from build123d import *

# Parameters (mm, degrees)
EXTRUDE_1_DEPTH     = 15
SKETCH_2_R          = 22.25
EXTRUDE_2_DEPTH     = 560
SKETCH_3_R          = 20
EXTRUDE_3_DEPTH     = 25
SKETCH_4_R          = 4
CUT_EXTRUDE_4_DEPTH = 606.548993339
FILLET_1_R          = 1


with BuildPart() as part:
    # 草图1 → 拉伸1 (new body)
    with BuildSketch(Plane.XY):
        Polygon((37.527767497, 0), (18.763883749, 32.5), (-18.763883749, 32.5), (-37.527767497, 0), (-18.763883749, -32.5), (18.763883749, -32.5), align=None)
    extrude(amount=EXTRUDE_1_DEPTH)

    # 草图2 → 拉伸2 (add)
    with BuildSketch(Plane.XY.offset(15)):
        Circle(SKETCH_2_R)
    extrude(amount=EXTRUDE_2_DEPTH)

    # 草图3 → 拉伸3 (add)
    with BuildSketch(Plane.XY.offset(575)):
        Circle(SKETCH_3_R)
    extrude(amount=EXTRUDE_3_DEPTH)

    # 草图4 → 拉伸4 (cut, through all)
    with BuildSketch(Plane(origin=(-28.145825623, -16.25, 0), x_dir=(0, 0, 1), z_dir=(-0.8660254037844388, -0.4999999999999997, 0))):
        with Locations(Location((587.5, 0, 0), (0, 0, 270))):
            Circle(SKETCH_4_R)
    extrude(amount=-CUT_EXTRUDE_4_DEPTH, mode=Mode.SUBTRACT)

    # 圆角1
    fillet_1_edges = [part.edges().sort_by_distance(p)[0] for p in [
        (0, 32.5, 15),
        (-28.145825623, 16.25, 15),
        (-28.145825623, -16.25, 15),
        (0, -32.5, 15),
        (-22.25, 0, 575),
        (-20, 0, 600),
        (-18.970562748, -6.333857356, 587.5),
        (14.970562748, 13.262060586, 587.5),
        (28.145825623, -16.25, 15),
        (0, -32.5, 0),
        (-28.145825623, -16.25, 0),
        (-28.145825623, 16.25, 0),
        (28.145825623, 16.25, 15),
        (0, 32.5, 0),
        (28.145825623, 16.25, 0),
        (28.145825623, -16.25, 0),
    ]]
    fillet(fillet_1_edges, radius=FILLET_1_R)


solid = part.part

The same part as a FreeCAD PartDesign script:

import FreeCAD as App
import Part
import Sketcher
Q = App.Units.Quantity


def edges_at(feature, points):
    """Names of the edges that pass closest to the given points."""
    edges = feature.Shape.Edges
    near = lambda p: min(range(len(edges)), key=lambda i: edges[i].distToShape(Part.Vertex(*p))[0])
    return sorted({f"Edge{near(p) + 1}" for p in points})

doc = App.newDocument("Part")
params = doc.addObject("Spreadsheet::Sheet", "Params")
for row, (alias, value) in enumerate([
    ("pad1_length", "15 mm"),
    ("sketch2_diameter", "44.5 mm"),
    ("pad2_length", "560 mm"),
    ("sketch3_diameter", "40 mm"),
    ("pad3_length", "25 mm"),
    ("sketch4_diameter", "8 mm"),
    ("fillet_radius", "1 mm"),
], start=1):
    params.set(f"A{row}", alias)
    params.set(f"B{row}", "=" + value)
    params.setAlias(f"B{row}", alias)

body = doc.addObject("PartDesign::Body", "Body")

# Sketch on XY plane
sketch1 = doc.addObject("Sketcher::SketchObject", "Sketch")
body.addObject(sketch1)
sketch1.AttachmentSupport = (doc.XY_Plane, [""])
sketch1.MapMode = "FlatFace"
sketch1.addGeometry(Part.LineSegment(App.Vector(38, 0, 0), App.Vector(19, 32, 0)), False)
sketch1.addGeometry(Part.LineSegment(App.Vector(19, 32, 0), App.Vector(-19, 32, 0)), False)
sketch1.addGeometry(Part.LineSegment(App.Vector(-19, 32, 0), App.Vector(-38, 0, 0)), False)
sketch1.addGeometry(Part.LineSegment(App.Vector(-38, 0, 0), App.Vector(-19, -32, 0)), False)
sketch1.addGeometry(Part.LineSegment(App.Vector(-19, -32, 0), App.Vector(19, -32, 0)), False)
sketch1.addGeometry(Part.LineSegment(App.Vector(19, -32, 0), App.Vector(38, 0, 0)), False)
sketch1.addConstraint(Sketcher.Constraint("Coincident", 0, 2, 1, 1))
sketch1.addConstraint(Sketcher.Constraint("Coincident", 1, 2, 2, 1))
sketch1.addConstraint(Sketcher.Constraint("Coincident", 2, 2, 3, 1))
sketch1.addConstraint(Sketcher.Constraint("Coincident", 3, 2, 4, 1))
sketch1.addConstraint(Sketcher.Constraint("Coincident", 4, 2, 5, 1))
sketch1.addConstraint(Sketcher.Constraint("Coincident", 5, 2, 0, 1))
sketch1.addConstraint(Sketcher.Constraint("Horizontal", 1))
sketch1.addConstraint(Sketcher.Constraint("Horizontal", 4))
sketch1.addConstraint(Sketcher.Constraint("Symmetric", 0, 2, 3, 2, -1, 1))
sketch1.addConstraint(Sketcher.Constraint("Symmetric", 2, 2, 5, 2, -1, 1))
sketch1.addConstraint(Sketcher.Constraint("PointOnObject", 2, 2, -1))
sketch1.addConstraint(Sketcher.Constraint("Parallel", 2, 5))
sketch1.addConstraint(Sketcher.Constraint("Vertical", 1, 2, 3, 2))
sketch1.addConstraint(Sketcher.Constraint("Angle", 0, Q("120 deg")))
sketch1.addConstraint(Sketcher.Constraint("DistanceY", 3, 2, 1, 2, Q("65 mm")))
sketch1.addConstraint(Sketcher.Constraint("DistanceX", 1, 2, 1, 1, Q("37.527767 mm")))
pad1 = doc.addObject("PartDesign::Pad", "Pad")
body.addObject(pad1)
pad1.Profile = sketch1
pad1.setExpression("Length", "Params.pad1_length")

# Sketch on XY plane
sketch2 = doc.addObject("Sketcher::SketchObject", "Sketch001")
body.addObject(sketch2)
sketch2.AttachmentSupport = (doc.XY_Plane, [""])
sketch2.MapMode = "FlatFace"
sketch2.AttachmentOffset = App.Placement(App.Vector(0, 0, 15), App.Rotation())
sketch2.addGeometry(Part.Circle(App.Vector(0, 0, 0), App.Vector(0, 0, 1), 22), False)
sketch2.addConstraint(Sketcher.Constraint("Coincident", 0, 3, -1, 1))
sketch2.addConstraint(Sketcher.Constraint("Diameter", 0, Q("44.5 mm")))
sketch2.setExpression("Constraints[1]", "Params.sketch2_diameter")
pad2 = doc.addObject("PartDesign::Pad", "Pad001")
body.addObject(pad2)
pad2.Profile = sketch2
pad2.setExpression("Length", "Params.pad2_length")

# Sketch on XY plane
sketch3 = doc.addObject("Sketcher::SketchObject", "Sketch002")
body.addObject(sketch3)
sketch3.AttachmentSupport = (doc.XY_Plane, [""])
sketch3.MapMode = "FlatFace"
sketch3.AttachmentOffset = App.Placement(App.Vector(0, 0, 575), App.Rotation())
sketch3.addGeometry(Part.Circle(App.Vector(0, 0, 0), App.Vector(0, 0, 1), 20), False)
sketch3.addConstraint(Sketcher.Constraint("Coincident", 0, 3, -1, 1))
sketch3.addConstraint(Sketcher.Constraint("Diameter", 0, Q("40 mm")))
sketch3.setExpression("Constraints[1]", "Params.sketch3_diameter")
pad3 = doc.addObject("PartDesign::Pad", "Pad002")
body.addObject(pad3)
pad3.Profile = sketch3
pad3.setExpression("Length", "Params.pad3_length")

# Sketch on an angled plane
sketch4 = doc.addObject("Sketcher::SketchObject", "Sketch003")
body.addObject(sketch4)
sketch4.Placement = App.Placement(App.Vector(-28.145826, -16.25, 0), App.Rotation(App.Vector(0, 0, 1), App.Vector(-0.5, 0.866025404, 0), App.Vector(-0.866025404, -0.5, 0), "ZXY"))
sketch4.addGeometry(Part.Circle(App.Vector(587.5, 0, 0), App.Vector(0, 0, 1), 4), False)
sketch4.addConstraint(Sketcher.Constraint("PointOnObject", 0, 3, -1))
sketch4.addConstraint(Sketcher.Constraint("Diameter", 0, Q("8 mm")))
sketch4.addConstraint(Sketcher.Constraint("DistanceX", -1, 1, 0, 3, Q("587.5 mm")))
sketch4.setExpression("Constraints[1]", "Params.sketch4_diameter")
pocket1 = doc.addObject("PartDesign::Pocket", "Pocket")
body.addObject(pocket1)
pocket1.Profile = sketch4
pocket1.Type = "ThroughAll"
doc.recompute()

fillet = doc.addObject("PartDesign::Fillet", "Fillet")
body.addObject(fillet)
fillet.Base = (pocket1, edges_at(pocket1, [
    (0, 32.5, 15),
    (-28.146, 16.25, 15),
    (-28.146, -16.25, 15),
    (0, -32.5, 15),
    (-22.25, 0, 575),
    (-20, 0, 600),
    (-18.971, -6.334, 587.5),
    (14.971, 13.262, 587.5),
    (28.146, -16.25, 15),
    (0, -32.5, 0),
    (-28.146, -16.25, 0),
    (-28.146, 16.25, 0),
    (28.146, 16.25, 15),
    (0, 32.5, 0),
    (28.146, 16.25, 0),
    (28.146, -16.25, 0),
]))
fillet.setExpression("Radius", "Params.fillet_radius")

doc.recompute()
